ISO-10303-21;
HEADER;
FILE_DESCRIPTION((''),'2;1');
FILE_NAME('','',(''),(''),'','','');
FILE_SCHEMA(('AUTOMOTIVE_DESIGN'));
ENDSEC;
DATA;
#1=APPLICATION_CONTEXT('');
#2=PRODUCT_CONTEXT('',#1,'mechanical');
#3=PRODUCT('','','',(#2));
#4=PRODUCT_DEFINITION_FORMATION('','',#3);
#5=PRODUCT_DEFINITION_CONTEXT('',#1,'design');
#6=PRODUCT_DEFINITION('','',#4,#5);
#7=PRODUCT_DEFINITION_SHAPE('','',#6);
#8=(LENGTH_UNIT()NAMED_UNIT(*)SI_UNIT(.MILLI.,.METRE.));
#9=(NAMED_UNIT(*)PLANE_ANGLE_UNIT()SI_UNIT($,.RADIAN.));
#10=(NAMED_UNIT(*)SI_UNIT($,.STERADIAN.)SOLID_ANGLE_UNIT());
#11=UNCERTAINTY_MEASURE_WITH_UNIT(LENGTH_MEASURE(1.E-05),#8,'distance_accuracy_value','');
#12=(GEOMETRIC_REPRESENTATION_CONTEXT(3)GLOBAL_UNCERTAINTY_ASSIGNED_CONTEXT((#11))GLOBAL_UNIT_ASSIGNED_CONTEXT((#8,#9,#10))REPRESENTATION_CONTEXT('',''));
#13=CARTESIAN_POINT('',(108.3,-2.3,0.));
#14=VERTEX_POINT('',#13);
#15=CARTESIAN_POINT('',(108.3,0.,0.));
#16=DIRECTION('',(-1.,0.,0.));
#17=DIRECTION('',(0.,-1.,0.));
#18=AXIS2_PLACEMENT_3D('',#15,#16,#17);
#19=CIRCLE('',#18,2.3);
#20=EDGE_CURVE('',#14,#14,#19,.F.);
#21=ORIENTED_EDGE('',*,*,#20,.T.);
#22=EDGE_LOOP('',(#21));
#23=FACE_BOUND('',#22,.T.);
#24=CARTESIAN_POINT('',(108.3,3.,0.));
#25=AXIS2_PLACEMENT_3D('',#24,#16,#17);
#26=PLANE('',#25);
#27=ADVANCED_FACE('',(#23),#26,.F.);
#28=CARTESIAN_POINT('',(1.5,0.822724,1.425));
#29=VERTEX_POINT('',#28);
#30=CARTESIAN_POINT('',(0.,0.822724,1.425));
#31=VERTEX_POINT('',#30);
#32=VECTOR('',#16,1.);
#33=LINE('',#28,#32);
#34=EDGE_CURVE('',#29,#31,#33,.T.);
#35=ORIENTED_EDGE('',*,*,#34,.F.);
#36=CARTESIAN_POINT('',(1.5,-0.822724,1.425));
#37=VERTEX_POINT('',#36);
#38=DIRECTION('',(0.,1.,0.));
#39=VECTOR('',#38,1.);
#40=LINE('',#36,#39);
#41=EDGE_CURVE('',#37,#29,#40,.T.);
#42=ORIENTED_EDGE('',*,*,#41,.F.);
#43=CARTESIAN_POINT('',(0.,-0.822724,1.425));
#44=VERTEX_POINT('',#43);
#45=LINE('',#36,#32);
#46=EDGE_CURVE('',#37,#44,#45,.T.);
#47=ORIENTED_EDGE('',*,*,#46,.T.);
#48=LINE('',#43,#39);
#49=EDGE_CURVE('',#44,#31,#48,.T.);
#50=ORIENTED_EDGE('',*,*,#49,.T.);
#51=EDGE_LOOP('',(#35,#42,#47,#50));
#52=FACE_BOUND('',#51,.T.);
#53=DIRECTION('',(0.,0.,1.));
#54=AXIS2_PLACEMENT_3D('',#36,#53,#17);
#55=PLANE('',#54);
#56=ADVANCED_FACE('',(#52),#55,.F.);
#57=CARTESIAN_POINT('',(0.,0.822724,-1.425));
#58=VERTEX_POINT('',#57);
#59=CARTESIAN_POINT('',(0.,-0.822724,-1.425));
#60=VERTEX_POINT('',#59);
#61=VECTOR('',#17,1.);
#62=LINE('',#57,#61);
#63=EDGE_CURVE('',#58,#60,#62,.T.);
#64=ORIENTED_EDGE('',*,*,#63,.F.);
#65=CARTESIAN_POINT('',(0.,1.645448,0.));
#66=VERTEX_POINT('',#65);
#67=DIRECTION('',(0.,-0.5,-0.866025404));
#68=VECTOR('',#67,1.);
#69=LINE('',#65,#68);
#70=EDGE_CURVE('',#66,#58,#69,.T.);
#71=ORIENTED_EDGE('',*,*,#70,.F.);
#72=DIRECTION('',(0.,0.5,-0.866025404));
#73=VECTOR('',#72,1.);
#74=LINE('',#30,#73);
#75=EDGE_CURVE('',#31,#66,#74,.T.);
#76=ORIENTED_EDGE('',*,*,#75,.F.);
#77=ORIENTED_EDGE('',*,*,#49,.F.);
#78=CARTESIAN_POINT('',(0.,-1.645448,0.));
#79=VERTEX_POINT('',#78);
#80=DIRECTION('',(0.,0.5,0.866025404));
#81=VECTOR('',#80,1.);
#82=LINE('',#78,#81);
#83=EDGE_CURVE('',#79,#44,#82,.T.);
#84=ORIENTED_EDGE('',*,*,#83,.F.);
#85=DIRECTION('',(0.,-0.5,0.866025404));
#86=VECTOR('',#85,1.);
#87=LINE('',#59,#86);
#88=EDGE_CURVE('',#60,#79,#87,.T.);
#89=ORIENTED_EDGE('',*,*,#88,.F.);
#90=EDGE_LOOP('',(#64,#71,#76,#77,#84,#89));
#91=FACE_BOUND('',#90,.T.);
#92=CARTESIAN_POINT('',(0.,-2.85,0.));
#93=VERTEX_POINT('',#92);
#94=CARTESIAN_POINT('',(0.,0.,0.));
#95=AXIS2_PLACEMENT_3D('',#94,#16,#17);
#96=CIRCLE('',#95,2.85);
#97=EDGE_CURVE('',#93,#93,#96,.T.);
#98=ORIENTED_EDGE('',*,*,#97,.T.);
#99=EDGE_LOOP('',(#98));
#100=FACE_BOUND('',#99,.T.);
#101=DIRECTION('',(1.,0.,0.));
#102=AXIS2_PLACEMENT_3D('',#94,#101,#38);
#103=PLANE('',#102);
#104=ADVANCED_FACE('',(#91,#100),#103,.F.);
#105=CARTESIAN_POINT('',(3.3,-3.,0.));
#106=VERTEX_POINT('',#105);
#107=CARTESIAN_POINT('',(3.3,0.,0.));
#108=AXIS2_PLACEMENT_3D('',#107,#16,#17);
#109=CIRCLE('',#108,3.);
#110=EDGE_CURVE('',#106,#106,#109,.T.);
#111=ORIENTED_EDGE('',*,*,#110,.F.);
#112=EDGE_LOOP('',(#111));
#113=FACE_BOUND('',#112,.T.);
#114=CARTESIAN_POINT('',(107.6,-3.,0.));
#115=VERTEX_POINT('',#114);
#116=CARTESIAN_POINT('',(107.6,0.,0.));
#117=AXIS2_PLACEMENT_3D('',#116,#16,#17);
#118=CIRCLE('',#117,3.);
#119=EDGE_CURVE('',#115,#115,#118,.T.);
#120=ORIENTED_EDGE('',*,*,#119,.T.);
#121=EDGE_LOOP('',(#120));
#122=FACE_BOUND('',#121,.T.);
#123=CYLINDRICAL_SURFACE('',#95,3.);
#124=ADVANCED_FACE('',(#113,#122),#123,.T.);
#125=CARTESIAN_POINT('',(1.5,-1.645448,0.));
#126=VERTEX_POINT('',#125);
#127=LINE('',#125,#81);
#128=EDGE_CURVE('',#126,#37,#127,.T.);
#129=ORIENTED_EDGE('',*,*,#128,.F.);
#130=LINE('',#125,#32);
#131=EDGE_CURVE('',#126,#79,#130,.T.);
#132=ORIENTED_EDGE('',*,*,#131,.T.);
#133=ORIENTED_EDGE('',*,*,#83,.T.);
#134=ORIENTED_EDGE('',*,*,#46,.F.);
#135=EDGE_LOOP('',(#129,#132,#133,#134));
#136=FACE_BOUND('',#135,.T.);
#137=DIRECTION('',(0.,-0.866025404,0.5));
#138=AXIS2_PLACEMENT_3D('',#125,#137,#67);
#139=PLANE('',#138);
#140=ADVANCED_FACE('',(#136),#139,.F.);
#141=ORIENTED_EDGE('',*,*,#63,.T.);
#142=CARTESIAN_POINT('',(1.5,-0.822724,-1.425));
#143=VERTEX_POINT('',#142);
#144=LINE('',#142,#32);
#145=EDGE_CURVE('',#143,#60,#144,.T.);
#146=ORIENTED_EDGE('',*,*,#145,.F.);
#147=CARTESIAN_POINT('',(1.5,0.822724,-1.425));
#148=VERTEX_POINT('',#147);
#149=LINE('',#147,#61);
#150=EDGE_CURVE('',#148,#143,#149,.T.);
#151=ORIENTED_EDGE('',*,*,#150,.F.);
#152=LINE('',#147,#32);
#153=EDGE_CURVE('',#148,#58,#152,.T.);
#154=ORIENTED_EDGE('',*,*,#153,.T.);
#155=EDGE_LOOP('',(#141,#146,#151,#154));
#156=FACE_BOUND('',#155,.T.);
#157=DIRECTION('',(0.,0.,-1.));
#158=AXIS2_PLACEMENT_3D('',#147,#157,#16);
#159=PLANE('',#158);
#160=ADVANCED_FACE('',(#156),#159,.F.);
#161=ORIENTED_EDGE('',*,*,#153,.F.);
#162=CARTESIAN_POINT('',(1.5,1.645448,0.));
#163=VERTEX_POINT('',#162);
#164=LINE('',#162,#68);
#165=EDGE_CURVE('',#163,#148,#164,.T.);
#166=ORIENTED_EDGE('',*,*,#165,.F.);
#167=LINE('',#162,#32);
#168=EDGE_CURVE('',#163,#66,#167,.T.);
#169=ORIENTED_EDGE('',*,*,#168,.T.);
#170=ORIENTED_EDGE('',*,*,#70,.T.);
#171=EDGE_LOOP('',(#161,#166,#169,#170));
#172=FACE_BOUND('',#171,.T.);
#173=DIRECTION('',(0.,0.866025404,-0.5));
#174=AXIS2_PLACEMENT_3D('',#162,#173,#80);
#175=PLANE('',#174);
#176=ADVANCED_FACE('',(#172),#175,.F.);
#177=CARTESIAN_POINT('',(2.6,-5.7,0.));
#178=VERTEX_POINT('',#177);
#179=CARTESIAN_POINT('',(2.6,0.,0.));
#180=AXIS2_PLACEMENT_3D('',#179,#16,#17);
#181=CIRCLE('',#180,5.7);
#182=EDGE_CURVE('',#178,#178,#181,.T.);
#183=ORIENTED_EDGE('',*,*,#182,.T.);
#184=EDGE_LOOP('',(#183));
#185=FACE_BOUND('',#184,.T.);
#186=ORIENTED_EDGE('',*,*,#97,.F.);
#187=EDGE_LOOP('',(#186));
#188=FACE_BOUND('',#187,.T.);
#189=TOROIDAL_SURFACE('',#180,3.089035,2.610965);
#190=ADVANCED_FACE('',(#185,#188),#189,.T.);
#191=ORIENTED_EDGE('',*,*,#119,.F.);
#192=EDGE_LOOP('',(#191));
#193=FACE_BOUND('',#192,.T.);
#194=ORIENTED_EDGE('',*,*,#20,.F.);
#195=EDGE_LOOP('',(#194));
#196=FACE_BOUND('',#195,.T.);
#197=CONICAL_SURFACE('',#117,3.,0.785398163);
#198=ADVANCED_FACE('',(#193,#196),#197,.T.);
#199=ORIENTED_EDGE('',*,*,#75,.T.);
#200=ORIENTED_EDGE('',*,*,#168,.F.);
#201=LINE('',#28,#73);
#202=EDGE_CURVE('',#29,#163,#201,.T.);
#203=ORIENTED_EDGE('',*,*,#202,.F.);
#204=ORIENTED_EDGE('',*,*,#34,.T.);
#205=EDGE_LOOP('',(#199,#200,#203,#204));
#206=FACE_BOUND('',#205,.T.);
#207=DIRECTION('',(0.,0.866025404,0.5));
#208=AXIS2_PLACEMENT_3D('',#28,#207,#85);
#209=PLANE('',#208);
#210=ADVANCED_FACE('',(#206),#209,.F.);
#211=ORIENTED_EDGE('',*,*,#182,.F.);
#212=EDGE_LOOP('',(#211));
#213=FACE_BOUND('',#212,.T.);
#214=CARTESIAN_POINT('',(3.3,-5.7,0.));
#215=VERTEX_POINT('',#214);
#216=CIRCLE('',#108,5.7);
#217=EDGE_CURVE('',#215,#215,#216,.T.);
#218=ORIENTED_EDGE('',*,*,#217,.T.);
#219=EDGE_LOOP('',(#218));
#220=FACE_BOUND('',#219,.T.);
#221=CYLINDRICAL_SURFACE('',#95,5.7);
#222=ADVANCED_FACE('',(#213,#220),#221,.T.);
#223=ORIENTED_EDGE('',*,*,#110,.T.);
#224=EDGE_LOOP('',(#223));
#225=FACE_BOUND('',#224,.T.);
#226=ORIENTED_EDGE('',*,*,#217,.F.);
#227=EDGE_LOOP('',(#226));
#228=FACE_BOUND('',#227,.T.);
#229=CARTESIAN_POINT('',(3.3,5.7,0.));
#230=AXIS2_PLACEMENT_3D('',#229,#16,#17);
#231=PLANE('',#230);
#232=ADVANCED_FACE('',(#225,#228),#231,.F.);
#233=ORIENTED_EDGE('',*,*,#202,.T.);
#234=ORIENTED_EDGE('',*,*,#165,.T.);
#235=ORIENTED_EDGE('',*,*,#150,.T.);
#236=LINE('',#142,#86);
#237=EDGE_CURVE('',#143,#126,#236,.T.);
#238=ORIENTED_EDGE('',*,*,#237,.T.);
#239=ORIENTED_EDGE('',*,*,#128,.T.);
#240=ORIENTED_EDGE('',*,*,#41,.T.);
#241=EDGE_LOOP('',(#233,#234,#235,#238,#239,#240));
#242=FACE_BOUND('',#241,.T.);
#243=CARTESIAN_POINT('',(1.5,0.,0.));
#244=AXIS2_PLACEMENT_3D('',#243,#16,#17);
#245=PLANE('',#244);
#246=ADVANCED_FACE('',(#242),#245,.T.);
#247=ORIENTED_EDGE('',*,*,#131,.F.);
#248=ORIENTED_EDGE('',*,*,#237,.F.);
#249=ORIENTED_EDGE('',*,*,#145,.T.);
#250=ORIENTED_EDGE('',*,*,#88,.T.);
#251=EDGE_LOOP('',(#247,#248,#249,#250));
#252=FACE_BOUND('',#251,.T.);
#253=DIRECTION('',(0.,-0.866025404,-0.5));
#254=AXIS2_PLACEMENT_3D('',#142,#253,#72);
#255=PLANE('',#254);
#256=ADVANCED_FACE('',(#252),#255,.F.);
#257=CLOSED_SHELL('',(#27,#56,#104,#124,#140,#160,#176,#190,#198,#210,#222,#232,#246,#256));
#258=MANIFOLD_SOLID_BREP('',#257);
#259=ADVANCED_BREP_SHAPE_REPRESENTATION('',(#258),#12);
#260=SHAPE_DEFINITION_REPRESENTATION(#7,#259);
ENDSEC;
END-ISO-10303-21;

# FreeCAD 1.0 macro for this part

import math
import FreeCAD as App
import Part
import Sketcher
Q = App.Units.Quantity


def edges_at(feature, points):
    """Names of the edges that pass closest to the given points."""
    edges = feature.Shape.Edges
    near = lambda p: min(range(len(edges)), key=lambda i: edges[i].distToShape(Part.Vertex(*p))[0])
    return sorted({f"Edge{near(p) + 1}" for p in points})


def add_polygon(sketch, points):
    """Adds a closed chain of lines whose ends are joined by coincident constraints."""
    first, n = sketch.GeometryCount, len(points)
    for a, b in zip(points, points[1:] + points[:1]):
        sketch.addGeometry(Part.LineSegment(App.Vector(*a, 0), App.Vector(*b, 0)), False)
    for i in range(n):
        sketch.addConstraint(Sketcher.Constraint("Coincident", first + i, 2, first + (i + 1) % n, 1))

doc = App.newDocument("Part")
body = doc.addObject("PartDesign::Body", "Body")

sketch1 = body.newObject("Sketcher::SketchObject", "Sketch")
sketch1.AttachmentSupport = (doc.getObject("XY_Plane"), [""])
sketch1.MapMode = "FlatFace"
sketch1.addGeometry([
    Part.LineSegment(App.Vector(0, 0, 0), App.Vector(108.3, 0, 0)),
    Part.LineSegment(App.Vector(108.3, 0, 0), App.Vector(108.3, 3, 0)),
    Part.LineSegment(App.Vector(108.3, 3, 0), App.Vector(3.3, 3, 0)),
    Part.LineSegment(App.Vector(3.3, 3, 0), App.Vector(3.3, 5.7, 0)),
    Part.LineSegment(App.Vector(3.3, 5.7, 0), App.Vector(2.6, 5.7, 0)),
    Part.ArcOfCircle(Part.Circle(App.Vector(2.6, 3.1, 0), App.Vector(0, 0, 1), 2.6), math.radians(90), math.radians(185)),
    Part.LineSegment(App.Vector(0, 2.9, 0), App.Vector(0, 0, 0)),
], False)
sketch1.addConstraint([
    Sketcher.Constraint("Coincident", 0, 2, 1, 1),
    Sketcher.Constraint("Coincident", 1, 2, 2, 1),
    Sketcher.Constraint("Coincident", 2, 2, 3, 1),
    Sketcher.Constraint("Coincident", 3, 2, 4, 1),
    Sketcher.Constraint("Tangent", 4, 2, 5, 1),
    Sketcher.Constraint("Coincident", 5, 2, 6, 1),
    Sketcher.Constraint("Coincident", 6, 2, 0, 1),
    Sketcher.Constraint("Horizontal", 0),
    Sketcher.Constraint("Vertical", 1),
    Sketcher.Constraint("Horizontal", 2),
    Sketcher.Constraint("Vertical", 3),
    Sketcher.Constraint("Horizontal", 4),
    Sketcher.Constraint("Vertical", 6),
    Sketcher.Constraint("Coincident", 6, 2, -1, 1),
    Sketcher.Constraint("DistanceX", 2, 2, 2, 1, Q("105 mm")),
    Sketcher.Constraint("DistanceY", 1, 1, 1, 2, Q("3 mm")),
    Sketcher.Constraint("DistanceX", 0, 1, 0, 2, Q("108.3 mm")),
    Sketcher.Constraint("DistanceX", 4, 2, 4, 1, Q("0.7 mm")),
    Sketcher.Constraint("DistanceY", 3, 1, 3, 2, Q("2.7 mm")),
    Sketcher.Constraint("DistanceY", 6, 2, 6, 1, Q("2.85 mm")),
])
revolution = body.newObject("PartDesign::Revolution", "Revolution")
revolution.Profile = sketch1
revolution.ReferenceAxis = (sketch1, ["H_Axis"])
revolution.Angle = 360
doc.recompute()

chamfer = body.newObject("PartDesign::Chamfer", "Chamfer")
chamfer.Base = (revolution, edges_at(revolution, [(108.3, 3, 0)]))
chamfer.Size = 0.7

sketch2 = body.newObject("Sketcher::SketchObject", "Sketch001")
sketch2.AttachmentSupport = (doc.getObject("YZ_Plane"), [""])
sketch2.MapMode = "FlatFace"
add_polygon(sketch2, [(1.6, 0), (0.8, -1.4), (-0.8, -1.4), (-1.6, 0), (-0.8, 1.4), (0.8, 1.4)])
sketch2.addConstraint([
    Sketcher.Constraint("Horizontal", 1),
    Sketcher.Constraint("Horizontal", 4),
    Sketcher.Constraint("Symmetric", 0, 2, 3, 2, -1, 1),
    Sketcher.Constraint("Symmetric", 2, 2, 5, 2, -1, 1),
    Sketcher.Constraint("PointOnObject", 2, 2, -1),
    Sketcher.Constraint("Parallel", 2, 5),
    Sketcher.Constraint("Vertical", 1, 2, 3, 2),
    Sketcher.Constraint("Angle", 0, Q("-120 deg")),
    Sketcher.Constraint("DistanceY", 1, 2, 3, 2, Q("2.85 mm")),
    Sketcher.Constraint("DistanceX", 1, 2, 1, 1, Q("1.645448 mm")),
])
pocket1 = body.newObject("PartDesign::Pocket", "Pocket")
pocket1.Profile = sketch2
pocket1.Length = 1.5
pocket1.Reversed = True

doc.recompute()
